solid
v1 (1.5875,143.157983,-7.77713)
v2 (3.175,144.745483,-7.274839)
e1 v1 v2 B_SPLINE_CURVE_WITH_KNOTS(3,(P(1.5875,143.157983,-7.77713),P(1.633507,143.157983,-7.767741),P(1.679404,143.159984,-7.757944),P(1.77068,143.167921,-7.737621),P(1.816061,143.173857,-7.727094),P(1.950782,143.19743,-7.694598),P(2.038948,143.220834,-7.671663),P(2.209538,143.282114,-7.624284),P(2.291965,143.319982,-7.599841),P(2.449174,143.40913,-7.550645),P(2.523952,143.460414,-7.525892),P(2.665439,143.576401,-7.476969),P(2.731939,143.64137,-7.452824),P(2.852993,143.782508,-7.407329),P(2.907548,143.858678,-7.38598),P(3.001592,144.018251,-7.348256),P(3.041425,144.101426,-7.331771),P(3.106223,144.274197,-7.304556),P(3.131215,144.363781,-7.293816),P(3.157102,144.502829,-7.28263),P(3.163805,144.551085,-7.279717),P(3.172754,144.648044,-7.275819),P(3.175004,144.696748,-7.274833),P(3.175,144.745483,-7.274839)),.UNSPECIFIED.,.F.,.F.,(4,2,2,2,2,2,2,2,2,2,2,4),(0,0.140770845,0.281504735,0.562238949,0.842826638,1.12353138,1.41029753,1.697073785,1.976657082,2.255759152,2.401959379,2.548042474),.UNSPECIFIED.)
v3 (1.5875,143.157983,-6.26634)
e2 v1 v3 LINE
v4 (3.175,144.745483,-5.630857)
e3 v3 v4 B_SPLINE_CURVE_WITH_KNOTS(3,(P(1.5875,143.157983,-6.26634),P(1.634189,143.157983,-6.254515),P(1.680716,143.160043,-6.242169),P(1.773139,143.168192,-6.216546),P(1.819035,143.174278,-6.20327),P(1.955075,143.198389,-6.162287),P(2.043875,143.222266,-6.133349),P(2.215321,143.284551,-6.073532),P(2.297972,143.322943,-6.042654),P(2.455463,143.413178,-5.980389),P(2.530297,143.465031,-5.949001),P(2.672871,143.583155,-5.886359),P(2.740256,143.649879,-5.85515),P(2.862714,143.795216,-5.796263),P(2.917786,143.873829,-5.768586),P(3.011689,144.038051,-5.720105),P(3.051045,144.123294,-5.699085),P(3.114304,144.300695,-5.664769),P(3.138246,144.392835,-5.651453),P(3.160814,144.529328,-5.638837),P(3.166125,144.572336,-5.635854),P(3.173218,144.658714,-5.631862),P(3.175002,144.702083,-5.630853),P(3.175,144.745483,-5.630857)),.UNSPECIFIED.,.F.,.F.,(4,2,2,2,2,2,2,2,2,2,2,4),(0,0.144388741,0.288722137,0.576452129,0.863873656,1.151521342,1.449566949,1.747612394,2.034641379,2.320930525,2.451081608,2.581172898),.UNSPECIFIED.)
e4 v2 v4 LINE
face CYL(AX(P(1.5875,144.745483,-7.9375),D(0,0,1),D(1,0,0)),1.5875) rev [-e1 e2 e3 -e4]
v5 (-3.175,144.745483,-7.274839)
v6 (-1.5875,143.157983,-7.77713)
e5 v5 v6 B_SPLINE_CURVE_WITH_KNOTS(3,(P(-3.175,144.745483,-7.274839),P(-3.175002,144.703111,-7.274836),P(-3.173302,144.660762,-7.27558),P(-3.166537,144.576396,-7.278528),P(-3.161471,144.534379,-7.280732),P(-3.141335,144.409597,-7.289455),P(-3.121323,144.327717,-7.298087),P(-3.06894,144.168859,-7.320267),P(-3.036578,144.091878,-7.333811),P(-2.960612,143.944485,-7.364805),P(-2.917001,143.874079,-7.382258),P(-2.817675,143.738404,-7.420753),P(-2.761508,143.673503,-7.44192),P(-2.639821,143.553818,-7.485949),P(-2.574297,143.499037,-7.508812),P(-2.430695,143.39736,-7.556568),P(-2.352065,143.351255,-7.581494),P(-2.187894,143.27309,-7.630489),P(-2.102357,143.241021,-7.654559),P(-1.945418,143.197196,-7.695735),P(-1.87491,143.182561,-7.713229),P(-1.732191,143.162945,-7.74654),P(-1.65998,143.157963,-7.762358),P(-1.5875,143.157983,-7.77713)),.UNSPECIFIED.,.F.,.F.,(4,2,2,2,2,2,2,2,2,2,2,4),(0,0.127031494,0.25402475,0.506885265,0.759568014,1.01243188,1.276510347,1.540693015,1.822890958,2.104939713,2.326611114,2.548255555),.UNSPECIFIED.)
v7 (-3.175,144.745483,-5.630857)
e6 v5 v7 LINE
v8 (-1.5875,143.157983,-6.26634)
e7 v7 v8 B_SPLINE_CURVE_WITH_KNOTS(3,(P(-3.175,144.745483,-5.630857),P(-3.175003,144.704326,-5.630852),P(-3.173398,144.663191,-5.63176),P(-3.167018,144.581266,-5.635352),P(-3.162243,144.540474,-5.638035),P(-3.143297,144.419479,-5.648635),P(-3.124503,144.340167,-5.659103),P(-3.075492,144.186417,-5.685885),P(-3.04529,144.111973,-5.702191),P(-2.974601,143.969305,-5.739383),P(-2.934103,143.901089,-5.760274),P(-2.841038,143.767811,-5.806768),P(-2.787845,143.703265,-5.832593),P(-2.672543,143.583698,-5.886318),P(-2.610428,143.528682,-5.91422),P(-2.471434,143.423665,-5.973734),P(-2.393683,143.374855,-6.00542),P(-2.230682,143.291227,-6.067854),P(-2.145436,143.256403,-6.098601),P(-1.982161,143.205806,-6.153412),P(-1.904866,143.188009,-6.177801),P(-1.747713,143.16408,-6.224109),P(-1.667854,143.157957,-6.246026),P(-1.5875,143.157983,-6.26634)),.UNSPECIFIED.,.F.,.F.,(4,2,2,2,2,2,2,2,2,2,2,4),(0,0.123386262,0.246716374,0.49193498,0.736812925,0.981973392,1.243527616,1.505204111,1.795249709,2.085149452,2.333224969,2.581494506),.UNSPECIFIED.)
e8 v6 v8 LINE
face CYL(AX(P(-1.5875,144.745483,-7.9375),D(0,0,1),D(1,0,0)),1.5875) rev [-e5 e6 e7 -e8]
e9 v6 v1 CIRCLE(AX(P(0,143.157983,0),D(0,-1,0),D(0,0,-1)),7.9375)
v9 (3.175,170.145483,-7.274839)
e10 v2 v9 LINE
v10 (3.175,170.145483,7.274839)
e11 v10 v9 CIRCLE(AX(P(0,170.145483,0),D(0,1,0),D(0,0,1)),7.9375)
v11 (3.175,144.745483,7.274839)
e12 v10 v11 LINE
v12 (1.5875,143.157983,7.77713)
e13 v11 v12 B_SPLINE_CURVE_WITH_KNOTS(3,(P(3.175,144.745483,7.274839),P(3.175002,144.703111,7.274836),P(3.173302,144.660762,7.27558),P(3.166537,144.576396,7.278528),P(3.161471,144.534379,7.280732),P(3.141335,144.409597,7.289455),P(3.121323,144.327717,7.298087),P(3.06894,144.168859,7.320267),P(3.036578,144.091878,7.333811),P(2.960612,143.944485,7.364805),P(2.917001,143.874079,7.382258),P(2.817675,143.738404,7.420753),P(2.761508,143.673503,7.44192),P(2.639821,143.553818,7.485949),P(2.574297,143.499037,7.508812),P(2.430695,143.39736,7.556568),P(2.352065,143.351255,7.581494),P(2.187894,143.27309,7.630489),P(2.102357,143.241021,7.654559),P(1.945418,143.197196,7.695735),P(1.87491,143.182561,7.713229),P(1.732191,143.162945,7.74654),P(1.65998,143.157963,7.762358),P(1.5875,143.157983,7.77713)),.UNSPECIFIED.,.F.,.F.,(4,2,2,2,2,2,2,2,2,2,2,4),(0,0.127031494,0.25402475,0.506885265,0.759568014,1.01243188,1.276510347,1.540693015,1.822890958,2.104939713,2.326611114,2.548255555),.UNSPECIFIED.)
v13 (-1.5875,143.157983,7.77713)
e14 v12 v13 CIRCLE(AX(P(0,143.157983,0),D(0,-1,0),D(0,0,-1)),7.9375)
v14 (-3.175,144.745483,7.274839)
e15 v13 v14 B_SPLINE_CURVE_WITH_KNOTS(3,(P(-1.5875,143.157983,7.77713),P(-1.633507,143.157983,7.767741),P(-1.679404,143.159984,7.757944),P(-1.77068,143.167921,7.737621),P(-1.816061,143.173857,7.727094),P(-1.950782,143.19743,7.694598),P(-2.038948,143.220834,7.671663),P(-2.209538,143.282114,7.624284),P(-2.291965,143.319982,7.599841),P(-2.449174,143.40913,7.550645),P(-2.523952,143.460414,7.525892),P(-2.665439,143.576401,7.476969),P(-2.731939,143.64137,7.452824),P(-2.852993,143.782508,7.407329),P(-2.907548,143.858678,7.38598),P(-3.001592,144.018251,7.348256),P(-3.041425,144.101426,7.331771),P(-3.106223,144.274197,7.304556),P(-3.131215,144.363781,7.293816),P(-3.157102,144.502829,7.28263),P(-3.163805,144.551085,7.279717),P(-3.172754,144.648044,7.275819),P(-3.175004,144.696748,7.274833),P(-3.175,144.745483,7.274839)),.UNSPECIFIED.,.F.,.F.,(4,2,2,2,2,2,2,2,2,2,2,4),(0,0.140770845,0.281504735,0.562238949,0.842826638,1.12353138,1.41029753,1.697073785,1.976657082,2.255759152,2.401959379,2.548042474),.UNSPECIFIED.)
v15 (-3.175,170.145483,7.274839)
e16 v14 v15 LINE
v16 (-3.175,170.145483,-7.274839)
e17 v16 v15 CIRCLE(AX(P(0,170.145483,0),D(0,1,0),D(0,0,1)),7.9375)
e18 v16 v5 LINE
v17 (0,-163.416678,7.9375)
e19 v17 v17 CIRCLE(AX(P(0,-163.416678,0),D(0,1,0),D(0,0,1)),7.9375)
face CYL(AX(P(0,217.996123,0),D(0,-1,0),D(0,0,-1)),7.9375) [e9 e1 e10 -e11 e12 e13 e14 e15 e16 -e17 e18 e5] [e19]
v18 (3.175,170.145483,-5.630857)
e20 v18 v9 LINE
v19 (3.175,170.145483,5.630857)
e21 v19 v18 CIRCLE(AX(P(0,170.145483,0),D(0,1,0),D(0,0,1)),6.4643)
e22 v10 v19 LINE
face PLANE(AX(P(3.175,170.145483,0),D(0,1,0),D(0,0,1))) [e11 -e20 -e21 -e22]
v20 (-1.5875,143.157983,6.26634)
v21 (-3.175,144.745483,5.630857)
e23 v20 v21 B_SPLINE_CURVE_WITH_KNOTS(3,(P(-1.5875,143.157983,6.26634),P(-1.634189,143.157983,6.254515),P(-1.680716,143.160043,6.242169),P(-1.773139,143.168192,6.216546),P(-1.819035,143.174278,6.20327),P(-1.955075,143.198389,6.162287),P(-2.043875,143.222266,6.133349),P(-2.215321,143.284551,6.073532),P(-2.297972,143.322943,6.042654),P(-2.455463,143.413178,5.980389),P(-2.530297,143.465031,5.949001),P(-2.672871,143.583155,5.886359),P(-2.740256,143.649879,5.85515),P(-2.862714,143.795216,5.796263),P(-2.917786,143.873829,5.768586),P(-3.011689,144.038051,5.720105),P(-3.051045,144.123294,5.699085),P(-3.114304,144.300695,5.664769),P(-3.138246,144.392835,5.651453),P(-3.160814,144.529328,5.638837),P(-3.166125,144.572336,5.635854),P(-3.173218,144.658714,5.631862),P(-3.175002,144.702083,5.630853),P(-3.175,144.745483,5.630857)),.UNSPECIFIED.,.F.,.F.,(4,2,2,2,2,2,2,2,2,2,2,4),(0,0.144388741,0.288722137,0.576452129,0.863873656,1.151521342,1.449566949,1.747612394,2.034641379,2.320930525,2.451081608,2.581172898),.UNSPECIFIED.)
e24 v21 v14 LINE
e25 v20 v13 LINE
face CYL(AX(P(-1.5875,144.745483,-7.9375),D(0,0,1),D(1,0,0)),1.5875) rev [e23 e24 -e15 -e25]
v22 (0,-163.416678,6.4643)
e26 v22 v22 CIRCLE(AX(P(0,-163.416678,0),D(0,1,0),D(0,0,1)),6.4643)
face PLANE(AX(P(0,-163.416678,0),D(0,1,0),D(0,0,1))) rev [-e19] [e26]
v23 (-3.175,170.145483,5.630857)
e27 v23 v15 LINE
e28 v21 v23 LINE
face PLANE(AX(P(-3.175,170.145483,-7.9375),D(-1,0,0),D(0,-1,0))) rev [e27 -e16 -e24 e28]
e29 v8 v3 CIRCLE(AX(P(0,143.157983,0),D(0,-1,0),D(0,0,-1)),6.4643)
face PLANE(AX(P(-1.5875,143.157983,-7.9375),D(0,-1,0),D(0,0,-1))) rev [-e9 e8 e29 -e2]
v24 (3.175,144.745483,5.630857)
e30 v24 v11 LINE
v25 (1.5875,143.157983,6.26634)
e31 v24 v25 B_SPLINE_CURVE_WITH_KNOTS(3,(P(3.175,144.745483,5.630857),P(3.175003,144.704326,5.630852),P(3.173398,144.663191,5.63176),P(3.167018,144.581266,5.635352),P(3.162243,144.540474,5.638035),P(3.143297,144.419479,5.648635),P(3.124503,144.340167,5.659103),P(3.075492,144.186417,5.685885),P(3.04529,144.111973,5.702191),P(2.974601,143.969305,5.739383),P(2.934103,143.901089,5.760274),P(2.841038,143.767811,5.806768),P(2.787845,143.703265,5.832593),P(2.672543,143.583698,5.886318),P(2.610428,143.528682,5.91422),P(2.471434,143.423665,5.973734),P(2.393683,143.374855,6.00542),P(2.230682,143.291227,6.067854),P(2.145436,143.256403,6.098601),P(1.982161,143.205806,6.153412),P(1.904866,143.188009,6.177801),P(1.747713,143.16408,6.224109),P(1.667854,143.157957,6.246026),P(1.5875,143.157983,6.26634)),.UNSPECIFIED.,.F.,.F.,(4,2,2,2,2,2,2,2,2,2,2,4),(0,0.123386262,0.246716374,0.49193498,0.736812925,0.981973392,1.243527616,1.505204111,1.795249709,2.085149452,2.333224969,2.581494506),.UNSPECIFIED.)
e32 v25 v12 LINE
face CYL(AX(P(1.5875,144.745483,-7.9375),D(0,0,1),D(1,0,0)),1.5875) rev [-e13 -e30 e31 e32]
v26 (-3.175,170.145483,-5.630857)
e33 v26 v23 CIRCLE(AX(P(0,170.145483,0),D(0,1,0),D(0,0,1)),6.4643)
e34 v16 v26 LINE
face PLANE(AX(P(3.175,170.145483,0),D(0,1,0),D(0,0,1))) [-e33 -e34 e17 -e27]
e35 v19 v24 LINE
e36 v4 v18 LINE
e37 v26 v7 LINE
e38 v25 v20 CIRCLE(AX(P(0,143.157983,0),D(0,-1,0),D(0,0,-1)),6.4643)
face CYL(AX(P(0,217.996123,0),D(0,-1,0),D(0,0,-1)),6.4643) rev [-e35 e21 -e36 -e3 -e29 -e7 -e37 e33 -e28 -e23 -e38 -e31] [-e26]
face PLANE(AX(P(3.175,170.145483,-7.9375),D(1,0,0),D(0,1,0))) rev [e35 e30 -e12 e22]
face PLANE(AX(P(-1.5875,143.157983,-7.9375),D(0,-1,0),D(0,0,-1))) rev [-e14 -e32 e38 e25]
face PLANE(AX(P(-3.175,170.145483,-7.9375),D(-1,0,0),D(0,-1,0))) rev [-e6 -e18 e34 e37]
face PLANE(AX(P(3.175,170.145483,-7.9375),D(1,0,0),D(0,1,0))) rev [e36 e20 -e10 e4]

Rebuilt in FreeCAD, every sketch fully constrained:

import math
import FreeCAD as App
import Part
import Sketcher

V = App.Vector
Q = App.Units.Quantity

doc = App.newDocument("Part")
body = doc.addObject("PartDesign::Body", "Body")

# Sketch on XZ plane
sketch1 = body.newObject("Sketcher::SketchObject", "Sketch")
sketch1.AttachmentSupport = (doc.getObject("XZ_Plane"), [""])
sketch1.MapMode = "FlatFace"
sketch1.AttachmentOffset = App.Placement(V(0, 0, 163.416678), App.Rotation())
sketch1.addGeometry(Part.Circle(V(0, 0, 0), V(0, 0, 1), 8), False)
sketch1.addGeometry(Part.Circle(V(0, 0, 0), V(0, 0, 1), 6), False)
sketch1.addConstraint(Sketcher.Constraint("Coincident", 0, 3, -1, 1))
sketch1.addConstraint(Sketcher.Constraint("Coincident", 1, 3, -1, 1))
sketch1.addConstraint(Sketcher.Constraint("Diameter", 0, Q("0.625 in")))
sketch1.addConstraint(Sketcher.Constraint("Diameter", 1, Q("0.509 in")))
pad1 = body.newObject("PartDesign::Pad", "Pad")
pad1.Profile = sketch1
pad1.Length = 333.56216
pad1.Reversed = True

# Sketch on XY plane
sketch2 = body.newObject("Sketcher::SketchObject", "Sketch001")
sketch2.AttachmentSupport = (doc.getObject("XY_Plane"), [""])
sketch2.MapMode = "FlatFace"
sketch2.addGeometry(Part.LineSegment(V(3.2, 170.1, 0), V(-3.2, 170.1, 0)), False)
sketch2.addGeometry(Part.LineSegment(V(-3.2, 170.1, 0), V(-3.2, 144.7, 0)), False)
sketch2.addGeometry(Part.ArcOfCircle(Part.Circle(V(-1.6, 144.7, 0), V(0, 0, 1), 1.6), math.radians(180), math.radians(270)), False)
sketch2.addGeometry(Part.LineSegment(V(-1.6, 143.2, 0), V(1.6, 143.2, 0)), False)
sketch2.addGeometry(Part.ArcOfCircle(Part.Circle(V(1.6, 144.7, 0), V(0, 0, 1), 1.6), math.radians(-90), math.radians(0)), False)
sketch2.addGeometry(Part.LineSegment(V(3.2, 144.7, 0), V(3.2, 170.1, 0)), False)
sketch2.addConstraint(Sketcher.Constraint("Coincident", 0, 2, 1, 1))
sketch2.addConstraint(Sketcher.Constraint("Tangent", 1, 2, 2, 1))
sketch2.addConstraint(Sketcher.Constraint("Tangent", 2, 2, 3, 1))
sketch2.addConstraint(Sketcher.Constraint("Tangent", 3, 2, 4, 1))
sketch2.addConstraint(Sketcher.Constraint("Tangent", 4, 2, 5, 1))
sketch2.addConstraint(Sketcher.Constraint("Coincident", 5, 2, 0, 1))
sketch2.addConstraint(Sketcher.Constraint("Horizontal", 0))
sketch2.addConstraint(Sketcher.Constraint("Vertical", 1))
sketch2.addConstraint(Sketcher.Constraint("Horizontal", 3))
sketch2.addConstraint(Sketcher.Constraint("Vertical", 5))
sketch2.addConstraint(Sketcher.Constraint("Equal", 2, 4))
sketch2.addConstraint(Sketcher.Constraint("DistanceY", 1, 2, 1, 1, Q("1 in")))
sketch2.addConstraint(Sketcher.Constraint("Radius", 2, Q("0.0625 in")))
sketch2.addConstraint(Sketcher.Constraint("DistanceX", 0, 2, 0, 1, Q("0.25 in")))
sketch2.addConstraint(Sketcher.Constraint("DistanceX", 2, 3, -1, 1, Q("0.0625 in")))
sketch2.addConstraint(Sketcher.Constraint("DistanceY", -1, 1, 2, 3, 144.745483))
pocket1 = body.newObject("PartDesign::Pocket", "Pocket")
pocket1.Profile = sketch2
pocket1.Type = "ThroughAll"
pocket1.Midplane = True

doc.recompute()
